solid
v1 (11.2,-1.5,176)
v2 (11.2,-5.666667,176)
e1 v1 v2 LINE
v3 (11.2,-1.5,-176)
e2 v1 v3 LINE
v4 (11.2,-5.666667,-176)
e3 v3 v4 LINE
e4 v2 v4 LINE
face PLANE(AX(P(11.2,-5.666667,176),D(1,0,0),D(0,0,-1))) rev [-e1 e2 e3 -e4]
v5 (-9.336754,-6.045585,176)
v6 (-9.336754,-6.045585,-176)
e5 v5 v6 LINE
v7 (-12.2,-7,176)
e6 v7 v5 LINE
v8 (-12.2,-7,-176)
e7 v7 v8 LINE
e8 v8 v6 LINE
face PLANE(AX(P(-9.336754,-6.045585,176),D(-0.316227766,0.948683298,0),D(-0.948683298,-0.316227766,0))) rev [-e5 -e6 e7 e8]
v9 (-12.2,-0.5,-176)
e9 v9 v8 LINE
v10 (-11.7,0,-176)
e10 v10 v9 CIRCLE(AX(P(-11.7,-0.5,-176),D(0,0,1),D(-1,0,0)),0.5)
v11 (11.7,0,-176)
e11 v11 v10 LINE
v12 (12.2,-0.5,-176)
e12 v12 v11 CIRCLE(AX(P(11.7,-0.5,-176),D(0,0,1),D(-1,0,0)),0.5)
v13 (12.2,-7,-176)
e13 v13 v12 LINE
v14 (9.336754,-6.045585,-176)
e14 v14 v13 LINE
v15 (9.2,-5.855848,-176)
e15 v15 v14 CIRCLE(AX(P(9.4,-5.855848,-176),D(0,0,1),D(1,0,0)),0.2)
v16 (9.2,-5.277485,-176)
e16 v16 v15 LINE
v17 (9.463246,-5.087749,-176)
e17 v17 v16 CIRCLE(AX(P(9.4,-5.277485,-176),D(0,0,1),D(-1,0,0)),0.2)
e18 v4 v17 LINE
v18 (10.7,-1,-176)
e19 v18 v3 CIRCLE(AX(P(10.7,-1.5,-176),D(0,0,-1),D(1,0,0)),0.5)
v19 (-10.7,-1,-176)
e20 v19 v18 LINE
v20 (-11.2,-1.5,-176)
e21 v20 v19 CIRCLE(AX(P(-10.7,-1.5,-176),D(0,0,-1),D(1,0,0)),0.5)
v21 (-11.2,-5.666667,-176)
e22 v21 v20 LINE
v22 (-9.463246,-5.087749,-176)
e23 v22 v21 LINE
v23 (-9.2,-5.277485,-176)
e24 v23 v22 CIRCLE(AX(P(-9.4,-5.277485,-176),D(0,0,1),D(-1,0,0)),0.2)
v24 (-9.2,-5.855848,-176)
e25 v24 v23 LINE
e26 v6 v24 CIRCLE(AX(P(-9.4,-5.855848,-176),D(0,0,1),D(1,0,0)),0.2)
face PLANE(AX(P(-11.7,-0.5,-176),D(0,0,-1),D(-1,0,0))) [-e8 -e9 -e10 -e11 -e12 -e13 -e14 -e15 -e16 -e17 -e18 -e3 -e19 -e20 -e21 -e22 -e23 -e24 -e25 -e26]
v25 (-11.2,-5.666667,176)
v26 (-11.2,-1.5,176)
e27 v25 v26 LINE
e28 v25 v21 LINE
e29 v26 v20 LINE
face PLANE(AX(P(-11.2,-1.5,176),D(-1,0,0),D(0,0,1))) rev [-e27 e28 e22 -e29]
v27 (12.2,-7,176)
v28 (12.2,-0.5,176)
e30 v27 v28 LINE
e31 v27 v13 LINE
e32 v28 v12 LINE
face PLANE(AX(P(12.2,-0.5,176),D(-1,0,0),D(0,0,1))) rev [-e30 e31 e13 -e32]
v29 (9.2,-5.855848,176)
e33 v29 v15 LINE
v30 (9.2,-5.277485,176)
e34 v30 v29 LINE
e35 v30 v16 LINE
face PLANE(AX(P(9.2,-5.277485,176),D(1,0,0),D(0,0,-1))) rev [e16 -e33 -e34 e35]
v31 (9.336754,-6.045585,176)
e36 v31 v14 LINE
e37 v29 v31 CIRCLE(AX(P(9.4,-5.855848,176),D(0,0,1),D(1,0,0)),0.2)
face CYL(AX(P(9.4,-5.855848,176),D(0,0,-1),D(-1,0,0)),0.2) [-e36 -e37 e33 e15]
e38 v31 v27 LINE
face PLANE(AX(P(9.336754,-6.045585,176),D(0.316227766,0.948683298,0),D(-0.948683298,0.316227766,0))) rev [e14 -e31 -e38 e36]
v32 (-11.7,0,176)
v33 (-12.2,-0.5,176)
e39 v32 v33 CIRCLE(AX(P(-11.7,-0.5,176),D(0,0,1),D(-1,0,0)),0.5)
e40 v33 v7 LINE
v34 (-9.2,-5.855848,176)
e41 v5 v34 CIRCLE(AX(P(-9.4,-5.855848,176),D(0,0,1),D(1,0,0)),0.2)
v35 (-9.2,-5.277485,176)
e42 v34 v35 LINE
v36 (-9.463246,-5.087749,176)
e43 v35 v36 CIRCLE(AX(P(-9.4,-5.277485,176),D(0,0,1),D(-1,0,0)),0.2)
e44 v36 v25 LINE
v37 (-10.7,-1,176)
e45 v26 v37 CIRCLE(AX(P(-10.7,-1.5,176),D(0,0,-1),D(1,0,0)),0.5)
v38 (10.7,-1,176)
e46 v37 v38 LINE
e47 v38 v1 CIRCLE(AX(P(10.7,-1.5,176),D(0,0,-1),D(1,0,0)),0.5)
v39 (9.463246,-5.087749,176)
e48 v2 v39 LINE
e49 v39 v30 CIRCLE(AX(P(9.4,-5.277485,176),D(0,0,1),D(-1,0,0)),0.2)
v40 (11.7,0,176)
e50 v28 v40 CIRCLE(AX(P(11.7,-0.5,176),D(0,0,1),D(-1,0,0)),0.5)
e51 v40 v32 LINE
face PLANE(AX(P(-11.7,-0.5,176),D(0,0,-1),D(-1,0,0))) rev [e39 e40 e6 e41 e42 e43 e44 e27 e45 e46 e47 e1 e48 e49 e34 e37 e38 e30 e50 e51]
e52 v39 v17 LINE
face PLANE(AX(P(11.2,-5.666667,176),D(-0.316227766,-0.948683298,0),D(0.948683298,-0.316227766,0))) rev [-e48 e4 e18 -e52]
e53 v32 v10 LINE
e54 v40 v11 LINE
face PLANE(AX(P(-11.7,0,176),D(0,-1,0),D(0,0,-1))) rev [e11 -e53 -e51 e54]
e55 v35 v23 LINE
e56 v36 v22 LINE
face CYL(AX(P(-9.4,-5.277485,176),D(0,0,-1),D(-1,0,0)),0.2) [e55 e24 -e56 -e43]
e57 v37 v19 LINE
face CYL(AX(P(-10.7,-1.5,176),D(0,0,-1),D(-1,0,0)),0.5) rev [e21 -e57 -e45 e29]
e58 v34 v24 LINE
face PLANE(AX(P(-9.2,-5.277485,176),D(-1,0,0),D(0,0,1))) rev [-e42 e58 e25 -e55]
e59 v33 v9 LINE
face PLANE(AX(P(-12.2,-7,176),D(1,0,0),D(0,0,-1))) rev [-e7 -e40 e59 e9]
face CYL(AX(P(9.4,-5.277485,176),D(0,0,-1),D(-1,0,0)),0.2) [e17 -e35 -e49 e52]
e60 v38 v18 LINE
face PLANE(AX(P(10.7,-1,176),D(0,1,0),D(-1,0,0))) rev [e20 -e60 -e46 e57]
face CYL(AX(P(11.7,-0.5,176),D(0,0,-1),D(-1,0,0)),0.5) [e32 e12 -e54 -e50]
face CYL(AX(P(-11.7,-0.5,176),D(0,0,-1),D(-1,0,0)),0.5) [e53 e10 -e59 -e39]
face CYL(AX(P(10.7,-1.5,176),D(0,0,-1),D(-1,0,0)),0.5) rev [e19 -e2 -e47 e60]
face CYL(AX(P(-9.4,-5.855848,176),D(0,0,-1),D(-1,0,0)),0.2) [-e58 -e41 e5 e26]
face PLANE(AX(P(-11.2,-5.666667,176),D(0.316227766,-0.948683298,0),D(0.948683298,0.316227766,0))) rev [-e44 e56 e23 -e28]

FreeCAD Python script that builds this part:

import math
import FreeCAD as App
import Part
import Sketcher
from FreeCAD import Vector

doc = App.newDocument("Part")
body = doc.addObject("PartDesign::Body", "Body")

sketch1 = body.newObject("Sketcher::SketchObject", "Sketch")
sketch1.AttachmentSupport = (doc.getObject("XY_Plane"), [""])
sketch1.MapMode = "FlatFace"
sketch1.addGeometry([
    Part.LineSegment(Vector(-12.2, -7, 0), Vector(-9.34, -6.05, 0)),
    Part.ArcOfCircle(Part.Circle(Vector(-9.4, -5.86, 0), Vector(0, 0, 1), 0.2), math.radians(-72), math.radians(0)),
    Part.LineSegment(Vector(-9.2, -5.86, 0), Vector(-9.2, -5.28, 0)),
    Part.ArcOfCircle(Part.Circle(Vector(-9.4, -5.28, 0), Vector(0, 0, 1), 0.2), math.radians(0), math.radians(108)),
    Part.LineSegment(Vector(-9.46, -5.09, 0), Vector(-11.2, -5.67, 0)),
    Part.LineSegment(Vector(-11.2, -5.67, 0), Vector(-11.2, -1.5, 0)),
    Part.ArcOfCircle(Part.Circle(Vector(-10.7, -1.5, 0), Vector(0, 0, 1), 0.5), math.radians(90), math.radians(180)),
    Part.LineSegment(Vector(-10.7, -1, 0), Vector(10.7, -1, 0)),
    Part.ArcOfCircle(Part.Circle(Vector(10.7, -1.5, 0), Vector(0, 0, 1), 0.5), math.radians(0), math.radians(90)),
    Part.LineSegment(Vector(11.2, -1.5, 0), Vector(11.2, -5.67, 0)),
    Part.LineSegment(Vector(11.2, -5.67, 0), Vector(9.46, -5.09, 0)),
    Part.ArcOfCircle(Part.Circle(Vector(9.4, -5.28, 0), Vector(0, 0, 1), 0.2), math.radians(72), math.radians(180)),
    Part.LineSegment(Vector(9.2, -5.28, 0), Vector(9.2, -5.86, 0)),
    Part.ArcOfCircle(Part.Circle(Vector(9.4, -5.86, 0), Vector(0, 0, 1), 0.2), math.radians(180), math.radians(252)),
    Part.LineSegment(Vector(9.34, -6.05, 0), Vector(12.2, -7, 0)),
    Part.LineSegment(Vector(12.2, -7, 0), Vector(12.2, -0.5, 0)),
    Part.ArcOfCircle(Part.Circle(Vector(11.7, -0.5, 0), Vector(0, 0, 1), 0.5), math.radians(0), math.radians(90)),
    Part.LineSegment(Vector(11.7, 0, 0), Vector(-11.7, 0, 0)),
    Part.ArcOfCircle(Part.Circle(Vector(-11.7, -0.5, 0), Vector(0, 0, 1), 0.5), math.radians(90), math.radians(180)),
    Part.LineSegment(Vector(-12.2, -0.5, 0), Vector(-12.2, -7, 0)),
], False)
sketch1.addConstraint([
    Sketcher.Constraint("Tangent", 0, 2, 1, 1),
    Sketcher.Constraint("Tangent", 1, 2, 2, 1),
    Sketcher.Constraint("Tangent", 2, 2, 3, 1),
    Sketcher.Constraint("Tangent", 3, 2, 4, 1),
    Sketcher.Constraint("Coincident", 4, 2, 5, 1),
    Sketcher.Constraint("Tangent", 5, 2, 6, 2),
    Sketcher.Constraint("Tangent", 6, 1, 7, 1),
    Sketcher.Constraint("Tangent", 7, 2, 8, 2),
    Sketcher.Constraint("Tangent", 8, 1, 9, 1),
    Sketcher.Constraint("Coincident", 9, 2, 10, 1),
    Sketcher.Constraint("Tangent", 10, 2, 11, 1),
    Sketcher.Constraint("Tangent", 11, 2, 12, 1),
    Sketcher.Constraint("Tangent", 12, 2, 13, 1),
    Sketcher.Constraint("Tangent", 13, 2, 14, 1),
    Sketcher.Constraint("Coincident", 14, 2, 15, 1),
    Sketcher.Constraint("Tangent", 15, 2, 16, 1),
    Sketcher.Constraint("Tangent", 16, 2, 17, 1),
    Sketcher.Constraint("Tangent", 17, 2, 18, 1),
    Sketcher.Constraint("Tangent", 18, 2, 19, 1),
    Sketcher.Constraint("Coincident", 19, 2, 0, 1),
    Sketcher.Constraint("Vertical", 2),
    Sketcher.Constraint("Vertical", 5),
    Sketcher.Constraint("Horizontal", 7),
    Sketcher.Constraint("Vertical", 9),
    Sketcher.Constraint("Vertical", 12),
    Sketcher.Constraint("Vertical", 15),
    Sketcher.Constraint("Horizontal", 17),
    Sketcher.Constraint("Vertical", 19),
    Sketcher.Constraint("Equal", 1, 3),
    Sketcher.Constraint("Equal", 6, 8),
    Sketcher.Constraint("Equal", 3, 11),
    Sketcher.Constraint("Equal", 11, 13),
    Sketcher.Constraint("Equal", 8, 16),
    Sketcher.Constraint("Equal", 16, 18),
    Sketcher.Constraint("Symmetric", 16, 2, 17, 2, -1, 1),
    Sketcher.Constraint("Symmetric", 3, 3, 11, 3, -2),
    Sketcher.Constraint("Symmetric", 4, 2, 9, 2, -2),
    Sketcher.Constraint("Symmetric", 0, 2, 13, 2, -2),
    Sketcher.Constraint("Parallel", 0, 4),
    Sketcher.Constraint("Radius", 1, 0.2),
    Sketcher.Constraint("Radius", 6, 0.5),
    Sketcher.Constraint("DistanceX", 7, 1, 7, 2, 21.4),
    Sketcher.Constraint("DistanceX", 17, 2, 17, 1, 23.4),
    Sketcher.Constraint("DistanceY", 15, 1, 15, 2, 6.5),
    Sketcher.Constraint("DistanceY", 6, 1, -1, 1, 1.0),
    Sketcher.Constraint("DistanceX", 4, 2, 1, 2, 2.0),
    Sketcher.Constraint("Distance", 4, 1.8307),
    Sketcher.Constraint("DistanceY", 0, 2, 3, 3, 0.7681),
])
pad1 = body.newObject("PartDesign::Pad", "Pad")
pad1.Profile = sketch1
pad1.Length = 352
pad1.Midplane = True

doc.recompute()
